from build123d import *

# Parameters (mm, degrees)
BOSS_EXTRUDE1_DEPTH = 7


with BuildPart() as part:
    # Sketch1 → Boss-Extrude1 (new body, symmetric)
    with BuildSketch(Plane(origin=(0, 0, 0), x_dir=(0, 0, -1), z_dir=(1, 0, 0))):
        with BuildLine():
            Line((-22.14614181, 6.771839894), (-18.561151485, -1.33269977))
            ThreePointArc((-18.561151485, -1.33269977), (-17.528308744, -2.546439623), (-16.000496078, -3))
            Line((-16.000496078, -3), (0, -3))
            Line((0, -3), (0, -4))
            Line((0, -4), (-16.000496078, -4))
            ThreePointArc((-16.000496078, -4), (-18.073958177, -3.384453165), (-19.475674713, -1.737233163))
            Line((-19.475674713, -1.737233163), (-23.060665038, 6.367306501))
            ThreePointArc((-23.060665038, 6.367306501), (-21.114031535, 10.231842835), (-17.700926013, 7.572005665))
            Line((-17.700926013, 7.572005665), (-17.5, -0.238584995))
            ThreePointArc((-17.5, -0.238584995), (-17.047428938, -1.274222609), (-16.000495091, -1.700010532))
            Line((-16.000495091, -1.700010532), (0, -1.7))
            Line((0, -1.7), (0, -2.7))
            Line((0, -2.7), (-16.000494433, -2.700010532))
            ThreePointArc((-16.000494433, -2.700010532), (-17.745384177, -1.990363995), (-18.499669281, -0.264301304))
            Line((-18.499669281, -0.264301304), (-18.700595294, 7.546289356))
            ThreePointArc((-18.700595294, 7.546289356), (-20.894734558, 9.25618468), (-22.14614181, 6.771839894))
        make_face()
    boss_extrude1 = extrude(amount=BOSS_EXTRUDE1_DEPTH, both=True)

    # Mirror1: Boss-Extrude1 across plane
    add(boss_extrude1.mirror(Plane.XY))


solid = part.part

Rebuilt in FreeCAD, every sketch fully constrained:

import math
import FreeCAD as App
import Part
import Sketcher

V = App.Vector
Q = App.Units.Quantity

doc = App.newDocument("Part")
params = doc.addObject("Spreadsheet::Sheet", "Params")
for row, (alias, value) in enumerate([
    ("sketch1_radius", "1.8 mm"),
    ("sketch1_radius2", "2.5 mm"),
    ("sketch1_radius3", "1.5 mm"),
    ("pad1_length", "14 mm"),
], start=1):
    params.set(f"A{row}", alias)
    params.set(f"B{row}", "=" + value)
    params.setAlias(f"B{row}", alias)

body = doc.addObject("PartDesign::Body", "Body")

# Sketch on YZ plane
sketch1 = doc.addObject("Sketcher::SketchObject", "Sketch")
body.addObject(sketch1)
sketch1.AttachmentSupport = (doc.YZ_Plane, [""])
sketch1.MapMode = "FlatFace"
sketch1.addGeometry([
    Part.LineSegment(V(-1.3, 18.6, 0), V(6.8, 22.1, 0)),  # 0
    Part.ArcOfCircle(Part.Circle(V(7.5, 20.5, 0), V(0, 0, 1), 1.8), math.radians(-89), math.radians(114)),  # 1
    Part.LineSegment(V(7.5, 18.7, 0), V(-0.3, 18.5, 0)),  # 2
    Part.ArcOfCircle(Part.Circle(V(-0.2, 16, 0), V(0, 0, 1), 2.5), math.radians(91), math.radians(180)),  # 3
    Part.LineSegment(V(-2.7, 16, 0), V(-2.7, 0, 0)),  # 4
    Part.LineSegment(V(-2.7, 0, 0), V(-1.7, 0, 0)),  # 5
    Part.LineSegment(V(-1.7, 0, 0), V(-1.7, 16, 0)),  # 6
    Part.ArcOfCircle(Part.Circle(V(-0.2, 16, 0), V(0, 0, 1), 1.5), math.radians(91), math.radians(180)),  # 7
    Part.LineSegment(V(-0.2, 17.5, 0), V(7.6, 17.7, 0)),  # 8
    Part.ArcOfCircle(Part.Circle(V(7.5, 20.5, 0), V(0, 0, 1), 2.8), math.radians(-89), math.radians(114)),  # 9
    Part.LineSegment(V(6.4, 23.1, 0), V(-1.7, 19.5, 0)),  # 10
    Part.ArcOfCircle(Part.Circle(V(-0.2, 16, 0), V(0, 0, 1), 3.8), math.radians(114), math.radians(180)),  # 11
    Part.LineSegment(V(-4, 16, 0), V(-4, 0, 0)),  # 12
    Part.LineSegment(V(-4, 0, 0), V(-3, 0, 0)),  # 13
    Part.LineSegment(V(-3, 0, 0), V(-3, 16, 0)),  # 14
    Part.ArcOfCircle(Part.Circle(V(-0.2, 16, 0), V(0, 0, 1), 2.8), math.radians(114), math.radians(180)),  # 15
], False)
sketch1.addConstraint([
    Sketcher.Constraint("Tangent", 0, 2, 1, 2),
    Sketcher.Constraint("Tangent", 1, 1, 2, 1),
    Sketcher.Constraint("Tangent", 2, 2, 3, 1),
    Sketcher.Constraint("Tangent", 3, 2, 4, 1),
    Sketcher.Constraint("Coincident", 4, 2, 5, 1),
    Sketcher.Constraint("Coincident", 5, 2, 6, 1),
    Sketcher.Constraint("Tangent", 6, 2, 7, 2),
    Sketcher.Constraint("Tangent", 7, 1, 8, 1),
    Sketcher.Constraint("Tangent", 8, 2, 9, 1),
    Sketcher.Constraint("Tangent", 9, 2, 10, 1),
    Sketcher.Constraint("Tangent", 10, 2, 11, 1),
    Sketcher.Constraint("Tangent", 11, 2, 12, 1),
    Sketcher.Constraint("Coincident", 12, 2, 13, 1),
    Sketcher.Constraint("Coincident", 13, 2, 14, 1),
    Sketcher.Constraint("Tangent", 14, 2, 15, 2),
    Sketcher.Constraint("Tangent", 15, 1, 0, 1),
    Sketcher.Constraint("Horizontal", 5),
    Sketcher.Constraint("Vertical", 12),
    Sketcher.Constraint("Horizontal", 13),
    Sketcher.Constraint("Vertical", 14),
    Sketcher.Constraint("Coincident", 7, 3, 3, 3),
    Sketcher.Constraint("Coincident", 9, 3, 1, 3),
    Sketcher.Constraint("Coincident", 11, 3, 3, 3),
    Sketcher.Constraint("Coincident", 15, 3, 3, 3),
    Sketcher.Constraint("PointOnObject", 4, 2, -1),
    Sketcher.Constraint("PointOnObject", 12, 2, -1),
    Sketcher.Constraint("Parallel", 4, 6),
    Sketcher.Constraint("Parallel", 2, 8),
    Sketcher.Constraint("Parallel", 0, 10),
    Sketcher.Constraint("Horizontal", 15, 3, 3, 2),
    Sketcher.Constraint("Radius", 1, Q("1.8 mm")),
    Sketcher.Constraint("Radius", 3, Q("2.5 mm")),
    Sketcher.Constraint("Radius", 7, Q("1.5 mm")),
    Sketcher.Constraint("DistanceX", 11, 2, -1, 1, Q("4 mm")),
    Sketcher.Constraint("DistanceX", -1, 1, 1, 3, Q("7.5 mm")),
    Sketcher.Constraint("DistanceY", -1, 1, 1, 3, Q("20.5 mm")),
    Sketcher.Constraint("DistanceX", 4, 2, -1, 1, Q("2.7 mm")),
    Sketcher.Constraint("DistanceY", -1, 1, 7, 1, Q("17.5 mm")),
])
sketch1.setExpression("Constraints[30]", "Params.sketch1_radius")
sketch1.setExpression("Constraints[31]", "Params.sketch1_radius2")
sketch1.setExpression("Constraints[32]", "Params.sketch1_radius3")
pad1 = doc.addObject("PartDesign::Pad", "Pad")
body.addObject(pad1)
pad1.Profile = sketch1
pad1.setExpression("Length", "Params.pad1_length")
pad1.Midplane = True
doc.recompute()

mirrored = doc.addObject("PartDesign::Mirrored", "Mirrored")
body.addObject(mirrored)
mirrored.Originals = [pad1]
mirrored.MirrorPlane = (doc.XY_Plane, [""])
body.Tip = mirrored

doc.recompute()
